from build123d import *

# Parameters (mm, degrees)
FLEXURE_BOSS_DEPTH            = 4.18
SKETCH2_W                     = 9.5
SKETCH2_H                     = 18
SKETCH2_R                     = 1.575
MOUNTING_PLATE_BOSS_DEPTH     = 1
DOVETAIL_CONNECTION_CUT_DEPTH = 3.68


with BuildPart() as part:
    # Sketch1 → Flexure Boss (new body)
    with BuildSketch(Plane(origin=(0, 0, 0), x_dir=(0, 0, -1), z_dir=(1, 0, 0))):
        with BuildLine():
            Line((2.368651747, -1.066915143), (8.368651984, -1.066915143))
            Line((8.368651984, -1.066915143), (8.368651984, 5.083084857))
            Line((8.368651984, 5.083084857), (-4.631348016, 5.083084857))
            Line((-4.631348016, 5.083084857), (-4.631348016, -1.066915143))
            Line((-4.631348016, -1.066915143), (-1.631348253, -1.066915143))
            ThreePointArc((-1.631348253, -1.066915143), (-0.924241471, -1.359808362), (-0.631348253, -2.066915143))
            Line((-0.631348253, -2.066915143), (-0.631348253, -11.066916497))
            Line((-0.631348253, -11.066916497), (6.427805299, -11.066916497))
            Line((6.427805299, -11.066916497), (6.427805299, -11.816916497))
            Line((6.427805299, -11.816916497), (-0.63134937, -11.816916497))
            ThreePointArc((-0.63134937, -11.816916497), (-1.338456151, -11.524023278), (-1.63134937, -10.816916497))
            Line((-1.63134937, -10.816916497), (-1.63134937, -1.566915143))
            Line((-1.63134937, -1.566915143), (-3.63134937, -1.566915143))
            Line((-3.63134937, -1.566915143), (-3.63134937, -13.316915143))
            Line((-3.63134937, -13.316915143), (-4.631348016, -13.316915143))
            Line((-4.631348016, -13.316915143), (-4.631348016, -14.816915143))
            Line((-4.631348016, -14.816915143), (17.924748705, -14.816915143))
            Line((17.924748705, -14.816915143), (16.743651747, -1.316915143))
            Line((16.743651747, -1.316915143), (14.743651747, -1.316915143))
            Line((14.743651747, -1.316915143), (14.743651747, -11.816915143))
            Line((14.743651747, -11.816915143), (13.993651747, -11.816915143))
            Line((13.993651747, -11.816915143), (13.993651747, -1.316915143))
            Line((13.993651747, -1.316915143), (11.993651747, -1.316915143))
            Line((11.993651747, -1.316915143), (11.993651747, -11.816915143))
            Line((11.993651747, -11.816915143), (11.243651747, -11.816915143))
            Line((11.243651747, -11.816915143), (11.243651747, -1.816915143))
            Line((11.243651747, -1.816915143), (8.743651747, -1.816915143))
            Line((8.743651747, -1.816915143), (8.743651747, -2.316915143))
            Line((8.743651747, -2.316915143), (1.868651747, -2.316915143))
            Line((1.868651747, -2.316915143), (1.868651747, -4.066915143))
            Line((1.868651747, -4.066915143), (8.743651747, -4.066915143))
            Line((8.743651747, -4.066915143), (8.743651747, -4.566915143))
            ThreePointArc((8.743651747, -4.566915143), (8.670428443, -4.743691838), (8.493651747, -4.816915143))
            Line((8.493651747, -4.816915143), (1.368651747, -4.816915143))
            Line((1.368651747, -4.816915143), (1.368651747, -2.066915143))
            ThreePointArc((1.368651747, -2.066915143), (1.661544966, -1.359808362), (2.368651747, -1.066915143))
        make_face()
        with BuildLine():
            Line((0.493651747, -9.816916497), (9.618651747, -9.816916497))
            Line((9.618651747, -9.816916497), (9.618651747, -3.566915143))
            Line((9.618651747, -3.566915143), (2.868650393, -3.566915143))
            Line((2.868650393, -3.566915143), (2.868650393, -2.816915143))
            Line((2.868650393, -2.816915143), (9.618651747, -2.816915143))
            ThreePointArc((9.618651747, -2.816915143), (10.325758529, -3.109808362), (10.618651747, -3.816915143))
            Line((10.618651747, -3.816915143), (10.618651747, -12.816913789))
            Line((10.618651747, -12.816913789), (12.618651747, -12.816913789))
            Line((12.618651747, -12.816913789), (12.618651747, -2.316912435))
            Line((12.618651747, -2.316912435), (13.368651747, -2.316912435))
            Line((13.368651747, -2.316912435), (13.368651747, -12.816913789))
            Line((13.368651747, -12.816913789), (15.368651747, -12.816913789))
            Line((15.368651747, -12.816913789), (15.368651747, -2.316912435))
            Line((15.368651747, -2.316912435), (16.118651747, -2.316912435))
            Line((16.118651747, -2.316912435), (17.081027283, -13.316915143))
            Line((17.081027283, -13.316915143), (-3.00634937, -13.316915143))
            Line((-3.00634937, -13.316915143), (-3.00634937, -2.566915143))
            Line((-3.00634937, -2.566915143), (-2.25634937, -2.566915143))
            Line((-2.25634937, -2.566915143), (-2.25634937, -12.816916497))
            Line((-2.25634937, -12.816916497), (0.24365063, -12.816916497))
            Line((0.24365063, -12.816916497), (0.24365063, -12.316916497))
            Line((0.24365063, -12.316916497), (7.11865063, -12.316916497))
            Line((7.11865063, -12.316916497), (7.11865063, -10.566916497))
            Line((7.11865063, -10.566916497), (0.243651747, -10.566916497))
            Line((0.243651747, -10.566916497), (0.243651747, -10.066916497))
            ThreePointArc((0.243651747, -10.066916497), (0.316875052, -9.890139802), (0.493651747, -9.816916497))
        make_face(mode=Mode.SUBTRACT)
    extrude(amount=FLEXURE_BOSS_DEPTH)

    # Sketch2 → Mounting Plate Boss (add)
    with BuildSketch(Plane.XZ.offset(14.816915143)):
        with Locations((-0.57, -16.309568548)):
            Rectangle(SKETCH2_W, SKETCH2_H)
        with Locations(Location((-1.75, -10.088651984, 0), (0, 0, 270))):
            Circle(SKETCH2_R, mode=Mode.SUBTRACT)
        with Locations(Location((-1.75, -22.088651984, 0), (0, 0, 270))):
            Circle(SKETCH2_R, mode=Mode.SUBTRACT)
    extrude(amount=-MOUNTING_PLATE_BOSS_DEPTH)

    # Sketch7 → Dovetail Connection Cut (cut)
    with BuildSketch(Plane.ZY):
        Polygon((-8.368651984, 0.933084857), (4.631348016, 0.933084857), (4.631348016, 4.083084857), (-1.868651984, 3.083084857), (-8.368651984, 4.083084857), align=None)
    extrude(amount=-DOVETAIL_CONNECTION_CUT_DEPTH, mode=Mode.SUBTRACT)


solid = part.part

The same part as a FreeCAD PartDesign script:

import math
import FreeCAD as App
import Part
import Sketcher
Q = App.Units.Quantity


def add_polygon(sketch, points):
    """Adds a closed chain of lines whose ends are joined by coincident constraints."""
    first, n = sketch.GeometryCount, len(points)
    for a, b in zip(points, points[1:] + points[:1]):
        sketch.addGeometry(Part.LineSegment(App.Vector(*a, 0), App.Vector(*b, 0)), False)
    for i in range(n):
        sketch.addConstraint(Sketcher.Constraint("Coincident", first + i, 2, first + (i + 1) % n, 1))

doc = App.newDocument("Part")
body = doc.addObject("PartDesign::Body", "Body")

# Sketch on YZ plane
sketch1 = body.newObject("Sketcher::SketchObject", "Sketch")
sketch1.AttachmentSupport = (doc.getObject("YZ_Plane"), [""])
sketch1.MapMode = "FlatFace"
sketch1.addGeometry([
    Part.LineSegment(App.Vector(-1.07, -2.37, 0), App.Vector(-1.07, -8.37, 0)),  # 0
    Part.LineSegment(App.Vector(-1.07, -8.37, 0), App.Vector(5.08, -8.37, 0)),  # 1
    Part.LineSegment(App.Vector(5.08, -8.37, 0), App.Vector(5.08, 4.63, 0)),  # 2
    Part.LineSegment(App.Vector(5.08, 4.63, 0), App.Vector(-1.07, 4.63, 0)),  # 3
    Part.LineSegment(App.Vector(-1.07, 4.63, 0), App.Vector(-1.07, 1.63, 0)),  # 4
    Part.ArcOfCircle(Part.Circle(App.Vector(-2.07, 1.63, 0), App.Vector(0, 0, 1), 1), math.radians(-90), math.radians(0)),  # 5
    Part.LineSegment(App.Vector(-2.07, 0.63, 0), App.Vector(-11.07, 0.63, 0)),  # 6
    Part.LineSegment(App.Vector(-11.07, 0.63, 0), App.Vector(-11.07, -6.43, 0)),  # 7
    Part.LineSegment(App.Vector(-11.07, -6.43, 0), App.Vector(-11.82, -6.43, 0)),  # 8
    Part.LineSegment(App.Vector(-11.82, -6.43, 0), App.Vector(-11.82, 0.63, 0)),  # 9
    Part.ArcOfCircle(Part.Circle(App.Vector(-10.82, 0.63, 0), App.Vector(0, 0, 1), 1), math.radians(90), math.radians(180)),  # 10
    Part.LineSegment(App.Vector(-10.82, 1.63, 0), App.Vector(-1.57, 1.63, 0)),  # 11
    Part.LineSegment(App.Vector(-1.57, 1.63, 0), App.Vector(-1.57, 3.63, 0)),  # 12
    Part.LineSegment(App.Vector(-1.57, 3.63, 0), App.Vector(-13.32, 3.63, 0)),  # 13
    Part.LineSegment(App.Vector(-13.32, 3.63, 0), App.Vector(-13.32, 4.63, 0)),  # 14
    Part.LineSegment(App.Vector(-13.32, 4.63, 0), App.Vector(-14.82, 4.63, 0)),  # 15
    Part.LineSegment(App.Vector(-14.82, 4.63, 0), App.Vector(-14.82, -17.92, 0)),  # 16
    Part.LineSegment(App.Vector(-14.82, -17.92, 0), App.Vector(-1.32, -16.74, 0)),  # 17
    Part.LineSegment(App.Vector(-1.32, -16.74, 0), App.Vector(-1.32, -14.74, 0)),  # 18
    Part.LineSegment(App.Vector(-1.32, -14.74, 0), App.Vector(-11.82, -14.74, 0)),  # 19
    Part.LineSegment(App.Vector(-11.82, -14.74, 0), App.Vector(-11.82, -13.99, 0)),  # 20
    Part.LineSegment(App.Vector(-11.82, -13.99, 0), App.Vector(-1.32, -13.99, 0)),  # 21
    Part.LineSegment(App.Vector(-1.32, -13.99, 0), App.Vector(-1.32, -11.99, 0)),  # 22
    Part.LineSegment(App.Vector(-1.32, -11.99, 0), App.Vector(-11.82, -11.99, 0)),  # 23
    Part.LineSegment(App.Vector(-11.82, -11.99, 0), App.Vector(-11.82, -11.24, 0)),  # 24
    Part.LineSegment(App.Vector(-11.82, -11.24, 0), App.Vector(-1.82, -11.24, 0)),  # 25
    Part.LineSegment(App.Vector(-1.82, -11.24, 0), App.Vector(-1.82, -8.74, 0)),  # 26
    Part.LineSegment(App.Vector(-1.82, -8.74, 0), App.Vector(-2.32, -8.74, 0)),  # 27
    Part.LineSegment(App.Vector(-2.32, -8.74, 0), App.Vector(-2.32, -1.87, 0)),  # 28
    Part.LineSegment(App.Vector(-2.32, -1.87, 0), App.Vector(-4.07, -1.87, 0)),  # 29
    Part.LineSegment(App.Vector(-4.07, -1.87, 0), App.Vector(-4.07, -8.74, 0)),  # 30
    Part.LineSegment(App.Vector(-4.07, -8.74, 0), App.Vector(-4.57, -8.74, 0)),  # 31
    Part.ArcOfCircle(Part.Circle(App.Vector(-4.57, -8.49, 0), App.Vector(0, 0, 1), 0.25), math.radians(180), math.radians(270)),  # 32
    Part.LineSegment(App.Vector(-4.82, -8.49, 0), App.Vector(-4.82, -1.37, 0)),  # 33
    Part.LineSegment(App.Vector(-4.82, -1.37, 0), App.Vector(-2.07, -1.37, 0)),  # 34
    Part.ArcOfCircle(Part.Circle(App.Vector(-2.07, -2.37, 0), App.Vector(0, 0, 1), 1), math.radians(0), math.radians(90)),  # 35
    Part.ArcOfCircle(Part.Circle(App.Vector(-10.07, -0.49, 0), App.Vector(0, 0, 1), 0.25), math.radians(0), math.radians(90)),  # 36
    Part.LineSegment(App.Vector(-9.82, -0.49, 0), App.Vector(-9.82, -9.62, 0)),  # 37
    Part.LineSegment(App.Vector(-9.82, -9.62, 0), App.Vector(-3.57, -9.62, 0)),  # 38
    Part.LineSegment(App.Vector(-3.57, -9.62, 0), App.Vector(-3.57, -2.87, 0)),  # 39
    Part.LineSegment(App.Vector(-3.57, -2.87, 0), App.Vector(-2.82, -2.87, 0)),  # 40
    Part.LineSegment(App.Vector(-2.82, -2.87, 0), App.Vector(-2.82, -9.62, 0)),  # 41
    Part.ArcOfCircle(Part.Circle(App.Vector(-3.82, -9.62, 0), App.Vector(0, 0, 1), 1), math.radians(-90), math.radians(0)),  # 42
    Part.LineSegment(App.Vector(-3.82, -10.62, 0), App.Vector(-12.82, -10.62, 0)),  # 43
    Part.LineSegment(App.Vector(-12.82, -10.62, 0), App.Vector(-12.82, -12.62, 0)),  # 44
    Part.LineSegment(App.Vector(-12.82, -12.62, 0), App.Vector(-2.32, -12.62, 0)),  # 45
    Part.LineSegment(App.Vector(-2.32, -12.62, 0), App.Vector(-2.32, -13.37, 0)),  # 46
    Part.LineSegment(App.Vector(-2.32, -13.37, 0), App.Vector(-12.82, -13.37, 0)),  # 47
    Part.LineSegment(App.Vector(-12.82, -13.37, 0), App.Vector(-12.82, -15.37, 0)),  # 48
    Part.LineSegment(App.Vector(-12.82, -15.37, 0), App.Vector(-2.32, -15.37, 0)),  # 49
    Part.LineSegment(App.Vector(-2.32, -15.37, 0), App.Vector(-2.32, -16.12, 0)),  # 50
    Part.LineSegment(App.Vector(-2.32, -16.12, 0), App.Vector(-13.32, -17.08, 0)),  # 51
    Part.LineSegment(App.Vector(-13.32, -17.08, 0), App.Vector(-13.32, 3.01, 0)),  # 52
    Part.LineSegment(App.Vector(-13.32, 3.01, 0), App.Vector(-2.57, 3.01, 0)),  # 53
    Part.LineSegment(App.Vector(-2.57, 3.01, 0), App.Vector(-2.57, 2.26, 0)),  # 54
    Part.LineSegment(App.Vector(-2.57, 2.26, 0), App.Vector(-12.82, 2.26, 0)),  # 55
    Part.LineSegment(App.Vector(-12.82, 2.26, 0), App.Vector(-12.82, -0.24, 0)),  # 56
    Part.LineSegment(App.Vector(-12.82, -0.24, 0), App.Vector(-12.32, -0.24, 0)),  # 57
    Part.LineSegment(App.Vector(-12.32, -0.24, 0), App.Vector(-12.32, -7.12, 0)),  # 58
    Part.LineSegment(App.Vector(-12.32, -7.12, 0), App.Vector(-10.57, -7.12, 0)),  # 59
    Part.LineSegment(App.Vector(-10.57, -7.12, 0), App.Vector(-10.57, -0.24, 0)),  # 60
    Part.LineSegment(App.Vector(-10.57, -0.24, 0), App.Vector(-10.07, -0.24, 0)),  # 61
], False)
sketch1.addConstraint([
    Sketcher.Constraint("Coincident", 0, 2, 1, 1),
    Sketcher.Constraint("Coincident", 1, 2, 2, 1),
    Sketcher.Constraint("Coincident", 2, 2, 3, 1),
    Sketcher.Constraint("Coincident", 3, 2, 4, 1),
    Sketcher.Constraint("Tangent", 4, 2, 5, 2),
    Sketcher.Constraint("Tangent", 5, 1, 6, 1),
    Sketcher.Constraint("Coincident", 6, 2, 7, 1),
    Sketcher.Constraint("Coincident", 7, 2, 8, 1),
    Sketcher.Constraint("Coincident", 8, 2, 9, 1),
    Sketcher.Constraint("Tangent", 9, 2, 10, 2),
    Sketcher.Constraint("Tangent", 10, 1, 11, 1),
    Sketcher.Constraint("Coincident", 11, 2, 12, 1),
    Sketcher.Constraint("Coincident", 12, 2, 13, 1),
    Sketcher.Constraint("Coincident", 13, 2, 14, 1),
    Sketcher.Constraint("Coincident", 14, 2, 15, 1),
    Sketcher.Constraint("Coincident", 15, 2, 16, 1),
    Sketcher.Constraint("Coincident", 16, 2, 17, 1),
    Sketcher.Constraint("Coincident", 17, 2, 18, 1),
    Sketcher.Constraint("Coincident", 18, 2, 19, 1),
    Sketcher.Constraint("Coincident", 19, 2, 20, 1),
    Sketcher.Constraint("Coincident", 20, 2, 21, 1),
    Sketcher.Constraint("Coincident", 21, 2, 22, 1),
    Sketcher.Constraint("Coincident", 22, 2, 23, 1),
    Sketcher.Constraint("Coincident", 23, 2, 24, 1),
    Sketcher.Constraint("Coincident", 24, 2, 25, 1),
    Sketcher.Constraint("Coincident", 25, 2, 26, 1),
    Sketcher.Constraint("Coincident", 26, 2, 27, 1),
    Sketcher.Constraint("Coincident", 27, 2, 28, 1),
    Sketcher.Constraint("Coincident", 28, 2, 29, 1),
    Sketcher.Constraint("Coincident", 29, 2, 30, 1),
    Sketcher.Constraint("Coincident", 30, 2, 31, 1),
    Sketcher.Constraint("Tangent", 31, 2, 32, 2),
    Sketcher.Constraint("Tangent", 32, 1, 33, 1),
    Sketcher.Constraint("Coincident", 33, 2, 34, 1),
    Sketcher.Constraint("Tangent", 34, 2, 35, 2),
    Sketcher.Constraint("Tangent", 35, 1, 0, 1),
    Sketcher.Constraint("Tangent", 36, 1, 37, 1),
    Sketcher.Constraint("Coincident", 37, 2, 38, 1),
    Sketcher.Constraint("Coincident", 38, 2, 39, 1),
    Sketcher.Constraint("Coincident", 39, 2, 40, 1),
    Sketcher.Constraint("Coincident", 40, 2, 41, 1),
    Sketcher.Constraint("Tangent", 41, 2, 42, 2),
    Sketcher.Constraint("Tangent", 42, 1, 43, 1),
    Sketcher.Constraint("Coincident", 43, 2, 44, 1),
    Sketcher.Constraint("Coincident", 44, 2, 45, 1),
    Sketcher.Constraint("Coincident", 45, 2, 46, 1),
    Sketcher.Constraint("Coincident", 46, 2, 47, 1),
    Sketcher.Constraint("Coincident", 47, 2, 48, 1),
    Sketcher.Constraint("Coincident", 48, 2, 49, 1),
    Sketcher.Constraint("Coincident", 49, 2, 50, 1),
    Sketcher.Constraint("Coincident", 50, 2, 51, 1),
    Sketcher.Constraint("Coincident", 51, 2, 52, 1),
    Sketcher.Constraint("Coincident", 52, 2, 53, 1),
    Sketcher.Constraint("Coincident", 53, 2, 54, 1),
    Sketcher.Constraint("Coincident", 54, 2, 55, 1),
    Sketcher.Constraint("Coincident", 55, 2, 56, 1),
    Sketcher.Constraint("Coincident", 56, 2, 57, 1),
    Sketcher.Constraint("Coincident", 57, 2, 58, 1),
    Sketcher.Constraint("Coincident", 58, 2, 59, 1),
    Sketcher.Constraint("Coincident", 59, 2, 60, 1),
    Sketcher.Constraint("Coincident", 60, 2, 61, 1),
    Sketcher.Constraint("Tangent", 61, 2, 36, 2),
    Sketcher.Constraint("Vertical", 0),
    Sketcher.Constraint("Horizontal", 1),
    Sketcher.Constraint("Vertical", 2),
    Sketcher.Constraint("Horizontal", 3),
    Sketcher.Constraint("Vertical", 4),
    Sketcher.Constraint("Horizontal", 6),
    Sketcher.Constraint("Vertical", 7),
    Sketcher.Constraint("Horizontal", 8),
    Sketcher.Constraint("Vertical", 9),
    Sketcher.Constraint("Horizontal", 11),
    Sketcher.Constraint("Vertical", 12),
    Sketcher.Constraint("Horizontal", 13),
    Sketcher.Constraint("Vertical", 14),
    Sketcher.Constraint("Horizontal", 15),
    Sketcher.Constraint("Vertical", 16),
    Sketcher.Constraint("Vertical", 18),
    Sketcher.Constraint("Horizontal", 19),
    Sketcher.Constraint("Vertical", 20),
    Sketcher.Constraint("Horizontal", 21),
    Sketcher.Constraint("Vertical", 22),
    Sketcher.Constraint("Horizontal", 23),
    Sketcher.Constraint("Vertical", 24),
    Sketcher.Constraint("Horizontal", 25),
    Sketcher.Constraint("Vertical", 26),
    Sketcher.Constraint("Horizontal", 27),
    Sketcher.Constraint("Vertical", 28),
    Sketcher.Constraint("Horizontal", 29),
    Sketcher.Constraint("Vertical", 30),
    Sketcher.Constraint("Horizontal", 31),
    Sketcher.Constraint("Vertical", 33),
    Sketcher.Constraint("Horizontal", 34),
    Sketcher.Constraint("Vertical", 37),
    Sketcher.Constraint("Horizontal", 38),
    Sketcher.Constraint("Vertical", 39),
    Sketcher.Constraint("Horizontal", 40),
    Sketcher.Constraint("Vertical", 41),
    Sketcher.Constraint("Horizontal", 43),
    Sketcher.Constraint("Vertical", 44),
    Sketcher.Constraint("Horizontal", 45),
    Sketcher.Constraint("Vertical", 46),
    Sketcher.Constraint("Horizontal", 47),
    Sketcher.Constraint("Vertical", 48),
    Sketcher.Constraint("Horizontal", 49),
    Sketcher.Constraint("Vertical", 50),
    Sketcher.Constraint("Vertical", 52),
    Sketcher.Constraint("Horizontal", 53),
    Sketcher.Constraint("Vertical", 54),
    Sketcher.Constraint("Horizontal", 55),
    Sketcher.Constraint("Vertical", 56),
    Sketcher.Constraint("Horizontal", 57),
    Sketcher.Constraint("Vertical", 58),
    Sketcher.Constraint("Horizontal", 59),
    Sketcher.Constraint("Vertical", 60),
    Sketcher.Constraint("Horizontal", 61),
    Sketcher.Constraint("Equal", 5, 10),
    Sketcher.Constraint("Equal", 10, 35),
    Sketcher.Constraint("Equal", 32, 36),
    Sketcher.Constraint("Equal", 35, 42),
    Sketcher.Constraint("Parallel", 17, 51),
    Sketcher.Constraint("Horizontal", 10, 3, 5, 1),
    Sketcher.Constraint("Horizontal", 3, 2, 14, 2),
    Sketcher.Constraint("Horizontal", 27, 2, 30, 2),
    Sketcher.Constraint("Horizontal", 42, 3, 37, 2),
    Sketcher.Constraint("Horizontal", 57, 2, 60, 2),
    Sketcher.Constraint("Vertical", 5, 3, 35, 3),
    Sketcher.Constraint("Vertical", 9, 2, 19, 2),
    Sketcher.Constraint("Vertical", 18, 2, 21, 2),
    Sketcher.Constraint("Vertical", 20, 2, 23, 2),
    Sketcher.Constraint("Vertical", 44, 2, 47, 2),
    Sketcher.Constraint("Vertical", 46, 2, 49, 2),
    Sketcher.Constraint("Vertical", 14, 2, 51, 2),
    Sketcher.Constraint("Equal", 27, 31),
    Sketcher.Constraint("Equal", 8, 40),
    Sketcher.Constraint("Equal", 23, 45),
    Sketcher.Constraint("Equal", 31, 57),
    Sketcher.Constraint("Equal", 29, 59),
    Sketcher.Constraint("Equal", 57, 61),
    Sketcher.Constraint("Equal", 12, 18),
    Sketcher.Constraint("Equal", 40, 20),
    Sketcher.Constraint("Equal", 18, 22),
    Sketcher.Constraint("Equal", 20, 24),
    Sketcher.Constraint("Equal", 22, 44),
    Sketcher.Constraint("Equal", 24, 46),
    Sketcher.Constraint("Equal", 44, 48),
    Sketcher.Constraint("Equal", 46, 50),
    Sketcher.Constraint("Equal", 50, 54),
    Sketcher.Constraint("Equal", 26, 56),
    Sketcher.Constraint("Equal", 30, 58),
    Sketcher.Constraint("Radius", 5, Q("1 mm")),
    Sketcher.Constraint("DistanceX", 6, 2, 6, 1, Q("9.000001 mm")),
    Sketcher.Constraint("DistanceX", 25, 1, 25, 2, Q("10 mm")),
    Sketcher.Constraint("DistanceX", 43, 2, 43, 1, Q("8.999999 mm")),
    Sketcher.Constraint("DistanceY", 0, 2, 0, 1, Q("6 mm")),
    Sketcher.Constraint("DistanceY", 2, 1, 2, 2, Q("13 mm")),
    Sketcher.Constraint("DistanceY", 4, 2, 4, 1, Q("3 mm")),
    Sketcher.Constraint("DistanceY", 12, 1, 12, 2, Q("2 mm")),
    Sketcher.Constraint("Angle", 17, Q("5 deg")),
    Sketcher.Constraint("Radius", 32, Q("0.25 mm")),
    Sketcher.Constraint("DistanceX", 15, 2, 15, 1, Q("1.5 mm")),
    Sketcher.Constraint("DistanceX", 19, 2, 19, 1, Q("10.5 mm")),
    Sketcher.Constraint("DistanceX", 27, 2, 27, 1, Q("0.5 mm")),
    Sketcher.Constraint("DistanceY", 26, 1, 26, 2, Q("2.5 mm")),
    Sketcher.Constraint("DistanceX", 1, 1, 1, 2, Q("6.15 mm")),
    Sketcher.Constraint("DistanceX", 8, 2, 8, 1, Q("0.75 mm")),
    Sketcher.Constraint("DistanceX", 11, 1, 11, 2, Q("9.250001 mm")),
    Sketcher.Constraint("DistanceX", 13, 2, 13, 1, Q("11.75 mm")),
    Sketcher.Constraint("DistanceX", 29, 2, 29, 1, Q("1.75 mm")),
    Sketcher.Constraint("DistanceX", 38, 1, 38, 2, Q("6.250001 mm")),
    Sketcher.Constraint("DistanceX", 53, 1, 53, 2, Q("10.75 mm")),
    Sketcher.Constraint("DistanceX", 55, 2, 55, 1, Q("10.250001 mm")),
    Sketcher.Constraint("DistanceY", 39, 1, 39, 2, Q("6.750001 mm")),
    Sketcher.Constraint("DistanceY", 28, 1, 28, 2, Q("6.875 mm")),
    Sketcher.Constraint("DistanceY", 33, 1, 33, 2, Q("7.125 mm")),
    Sketcher.Constraint("DistanceY", 37, 2, 37, 1, Q("9.125 mm")),
    Sketcher.Constraint("DistanceY", 7, 2, 7, 1, Q("7.059154 mm")),
    Sketcher.Constraint("DistanceY", -1, 1, 5, 3, Q("1.631348 mm")),
    Sketcher.Constraint("DistanceY", 36, 3, -1, 1, Q("0.493652 mm")),
    Sketcher.Constraint("DistanceX", 5, 3, -1, 1, Q("2.066915 mm")),
])
pad1 = body.newObject("PartDesign::Pad", "Pad")
pad1.Profile = sketch1
pad1.Length = 4.18

# Sketch on XZ plane
sketch2 = body.newObject("Sketcher::SketchObject", "Sketch001")
sketch2.AttachmentSupport = (doc.getObject("XZ_Plane"), [""])
sketch2.MapMode = "FlatFace"
sketch2.AttachmentOffset = App.Placement(App.Vector(0, 0, 14.816915), App.Rotation())
add_polygon(sketch2, [(-5.3, -7.3), (-5.3, -25.3), (4.2, -25.3), (4.2, -7.3)])  # lines 0-3
sketch2.addGeometry(Part.Circle(App.Vector(-1.8, -22.1, 0), App.Vector(0, 0, 1), 1.6), False)  # 4
sketch2.addGeometry(Part.Circle(App.Vector(-1.8, -10.1, 0), App.Vector(0, 0, 1), 1.6), False)  # 5
sketch2.addConstraint([
    Sketcher.Constraint("Vertical", 0),
    Sketcher.Constraint("Horizontal", 1),
    Sketcher.Constraint("Vertical", 2),
    Sketcher.Constraint("Horizontal", 3),
    Sketcher.Constraint("Equal", 4, 5),
    Sketcher.Constraint("Vertical", 4, 3, 5, 3),
    Sketcher.Constraint("Diameter", 4, Q("3.15 mm")),
    Sketcher.Constraint("DistanceY", 0, 2, 0, 1, Q("18 mm")),
    Sketcher.Constraint("DistanceX", 1, 1, 1, 2, Q("9.5 mm")),
    Sketcher.Constraint("DistanceY", 4, 3, 5, 3, Q("12 mm")),
    Sketcher.Constraint("DistanceX", 4, 3, -1, 1, Q("1.75 mm")),
    Sketcher.Constraint("DistanceX", 0, 2, -1, 1, Q("5.32 mm")),
    Sketcher.Constraint("DistanceY", 4, 3, -1, 1, Q("22.088652 mm")),
    Sketcher.Constraint("DistanceY", 0, 2, -1, 1, Q("25.309569 mm")),
])
pad2 = body.newObject("PartDesign::Pad", "Pad001")
pad2.Profile = sketch2
pad2.Length = 1
pad2.Reversed = True

# Sketch on YZ plane
sketch3 = body.newObject("Sketcher::SketchObject", "Sketch002")
sketch3.AttachmentSupport = (doc.getObject("YZ_Plane"), [""])
sketch3.MapMode = "FlatFace"
add_polygon(sketch3, [(0.9, -8.4), (0.9, 4.6), (4.1, 4.6), (3.1, -1.9), (4.1, -8.4)])  # lines 0-4
sketch3.addConstraint([
    Sketcher.Constraint("Vertical", 0),
    Sketcher.Constraint("Horizontal", 1),
    Sketcher.Constraint("Horizontal", 4),
    Sketcher.Constraint("Vertical", 1, 2, 3, 2),
    Sketcher.Constraint("Equal", 2, 3),
    Sketcher.Constraint("DistanceY", 0, 1, 0, 2, Q("13 mm")),
    Sketcher.Constraint("DistanceX", 2, 2, 1, 2, Q("1 mm")),
    Sketcher.Constraint("DistanceX", 1, 1, 1, 2, Q("3.15 mm")),
    Sketcher.Constraint("DistanceY", -1, 1, 0, 2, Q("4.631348 mm")),
    Sketcher.Constraint("DistanceX", -1, 1, 0, 2, Q("0.933085 mm")),
])
pocket1 = body.newObject("PartDesign::Pocket", "Pocket")
pocket1.Profile = sketch3
pocket1.Length = 3.68
pocket1.Reversed = True

doc.recompute()
